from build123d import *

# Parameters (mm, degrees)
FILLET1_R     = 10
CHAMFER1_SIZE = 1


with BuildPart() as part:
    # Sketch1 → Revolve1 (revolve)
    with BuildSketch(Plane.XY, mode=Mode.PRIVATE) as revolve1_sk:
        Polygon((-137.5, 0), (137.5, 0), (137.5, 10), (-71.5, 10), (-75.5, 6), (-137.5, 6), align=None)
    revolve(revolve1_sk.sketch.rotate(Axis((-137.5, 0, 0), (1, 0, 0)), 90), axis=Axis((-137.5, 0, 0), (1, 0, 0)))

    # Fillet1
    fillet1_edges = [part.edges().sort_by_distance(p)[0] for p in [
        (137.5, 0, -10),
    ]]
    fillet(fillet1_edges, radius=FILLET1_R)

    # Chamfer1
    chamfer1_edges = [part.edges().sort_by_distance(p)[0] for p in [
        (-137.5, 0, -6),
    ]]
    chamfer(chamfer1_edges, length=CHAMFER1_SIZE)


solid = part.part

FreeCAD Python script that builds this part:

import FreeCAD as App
import Part
import Sketcher
from FreeCAD import Vector
Q = App.Units.Quantity


def edges_at(feature, points):
    """Names of the edges that pass closest to the given points."""
    edges = feature.Shape.Edges
    near = lambda p: min(range(len(edges)), key=lambda i: edges[i].distToShape(Part.Vertex(*p))[0])
    return sorted({f"Edge{near(p) + 1}" for p in points})

doc = App.newDocument("Part")
body = doc.addObject("PartDesign::Body", "Body")

sketch1 = doc.addObject("Sketcher::SketchObject", "Sketch")
body.addObject(sketch1)
sketch1.AttachmentSupport = (doc.XY_Plane, [""])
sketch1.MapMode = "FlatFace"
sketch1.addGeometry([
    Part.LineSegment(Vector(-138, 0, 0), Vector(138, 0, 0)),
    Part.LineSegment(Vector(138, 0, 0), Vector(138, 10, 0)),
    Part.LineSegment(Vector(138, 10, 0), Vector(-72, 10, 0)),
    Part.LineSegment(Vector(-72, 10, 0), Vector(-76, 6, 0)),
    Part.LineSegment(Vector(-76, 6, 0), Vector(-138, 6, 0)),
    Part.LineSegment(Vector(-138, 6, 0), Vector(-138, 0, 0)),
], False)
sketch1.addConstraint([
    Sketcher.Constraint("Coincident", 0, 2, 1, 1),
    Sketcher.Constraint("Coincident", 1, 2, 2, 1),
    Sketcher.Constraint("Coincident", 2, 2, 3, 1),
    Sketcher.Constraint("Coincident", 3, 2, 4, 1),
    Sketcher.Constraint("Coincident", 4, 2, 5, 1),
    Sketcher.Constraint("Coincident", 5, 2, 0, 1),
    Sketcher.Constraint("Horizontal", 0),
    Sketcher.Constraint("Vertical", 1),
    Sketcher.Constraint("Horizontal", 2),
    Sketcher.Constraint("Horizontal", 4),
    Sketcher.Constraint("Vertical", 5),
    Sketcher.Constraint("Symmetric", 0, 2, 5, 2, -1, 1),
    Sketcher.Constraint("DistanceX", 0, 1, 0, 2, Q("275 mm")),
    Sketcher.Constraint("DistanceX", 2, 2, 2, 1, Q("209 mm")),
    Sketcher.Constraint("DistanceX", 4, 2, 4, 1, Q("62 mm")),
    Sketcher.Constraint("DistanceY", 1, 1, 1, 2, Q("10 mm")),
    Sketcher.Constraint("DistanceY", 5, 2, 5, 1, Q("6 mm")),
])
revolution = doc.addObject("PartDesign::Revolution", "Revolution")
body.addObject(revolution)
revolution.Profile = sketch1
revolution.ReferenceAxis = (sketch1, ["H_Axis"])
revolution.Angle = 360
doc.recompute()

fillet = doc.addObject("PartDesign::Fillet", "Fillet")
body.addObject(fillet)
fillet.Base = (revolution, edges_at(revolution, [(137.5, 0, -10)]))
fillet.Radius = 10
doc.recompute()

chamfer = doc.addObject("PartDesign::Chamfer", "Chamfer")
body.addObject(chamfer)
chamfer.Base = (fillet, edges_at(fillet, [(-137.5, 0, -6)]))
chamfer.Size = 1

doc.recompute()
